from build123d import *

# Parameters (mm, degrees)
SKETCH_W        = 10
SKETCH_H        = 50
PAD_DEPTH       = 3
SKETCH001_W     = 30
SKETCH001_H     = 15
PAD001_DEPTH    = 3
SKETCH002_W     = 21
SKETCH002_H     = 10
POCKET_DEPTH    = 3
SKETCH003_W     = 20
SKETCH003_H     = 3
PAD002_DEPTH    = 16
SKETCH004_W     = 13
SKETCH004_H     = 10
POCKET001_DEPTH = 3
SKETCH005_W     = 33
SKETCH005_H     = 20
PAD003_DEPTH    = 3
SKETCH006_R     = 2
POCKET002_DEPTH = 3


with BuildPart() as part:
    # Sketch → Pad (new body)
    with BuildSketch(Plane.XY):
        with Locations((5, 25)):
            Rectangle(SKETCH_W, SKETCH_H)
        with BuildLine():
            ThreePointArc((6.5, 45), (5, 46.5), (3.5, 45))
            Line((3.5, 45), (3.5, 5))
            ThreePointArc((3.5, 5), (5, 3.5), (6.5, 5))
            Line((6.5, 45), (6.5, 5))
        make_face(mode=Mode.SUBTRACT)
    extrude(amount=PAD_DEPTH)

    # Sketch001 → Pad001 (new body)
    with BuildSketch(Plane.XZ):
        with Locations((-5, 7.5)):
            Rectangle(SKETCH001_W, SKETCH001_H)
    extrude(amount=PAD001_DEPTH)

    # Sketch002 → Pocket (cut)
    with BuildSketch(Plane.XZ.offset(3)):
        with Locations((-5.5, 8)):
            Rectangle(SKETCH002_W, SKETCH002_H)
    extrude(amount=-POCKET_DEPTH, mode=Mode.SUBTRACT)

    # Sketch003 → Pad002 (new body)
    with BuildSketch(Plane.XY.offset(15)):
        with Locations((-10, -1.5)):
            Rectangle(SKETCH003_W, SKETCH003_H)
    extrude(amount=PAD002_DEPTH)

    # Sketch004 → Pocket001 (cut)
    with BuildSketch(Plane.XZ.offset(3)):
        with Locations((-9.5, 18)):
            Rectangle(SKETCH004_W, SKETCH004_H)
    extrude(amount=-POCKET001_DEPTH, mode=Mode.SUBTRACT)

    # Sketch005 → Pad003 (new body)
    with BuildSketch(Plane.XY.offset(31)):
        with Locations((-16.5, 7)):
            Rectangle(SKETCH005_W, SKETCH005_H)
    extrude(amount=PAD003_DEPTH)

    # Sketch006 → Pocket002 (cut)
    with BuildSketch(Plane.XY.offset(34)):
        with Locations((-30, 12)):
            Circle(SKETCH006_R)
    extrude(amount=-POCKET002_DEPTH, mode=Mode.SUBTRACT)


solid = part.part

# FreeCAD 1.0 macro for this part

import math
import FreeCAD as App
import Part
import Sketcher
from FreeCAD import Vector

doc = App.newDocument("Part")
body = doc.addObject("PartDesign::Body", "Body")

sketch1 = body.newObject("Sketcher::SketchObject", "Sketch")
sketch1.AttachmentSupport = (doc.getObject("XY_Plane"), [""])
sketch1.MapMode = "FlatFace"
sketch1.addGeometry([
    Part.LineSegment(Vector(0, 50, 0), Vector(0, 0, 0)),
    Part.LineSegment(Vector(0, 0, 0), Vector(10, 0, 0)),
    Part.LineSegment(Vector(10, 0, 0), Vector(10, 50, 0)),
    Part.LineSegment(Vector(10, 50, 0), Vector(0, 50, 0)),
    Part.ArcOfCircle(Part.Circle(Vector(5, 45, 0), Vector(0, 0, 1), 1.5), math.radians(0), math.radians(180)),
    Part.LineSegment(Vector(6.5, 45, 0), Vector(6.5, 5, 0)),
    Part.ArcOfCircle(Part.Circle(Vector(5, 5, 0), Vector(0, 0, 1), 1.5), math.radians(180), math.radians(360)),
    Part.LineSegment(Vector(3.5, 5, 0), Vector(3.5, 45, 0)),
], False)
sketch1.addConstraint([
    Sketcher.Constraint("Coincident", 0, 2, 1, 1),
    Sketcher.Constraint("Coincident", 1, 2, 2, 1),
    Sketcher.Constraint("Coincident", 2, 2, 3, 1),
    Sketcher.Constraint("Coincident", 3, 2, 0, 1),
    Sketcher.Constraint("Tangent", 4, 1, 5, 1),
    Sketcher.Constraint("Tangent", 5, 2, 6, 2),
    Sketcher.Constraint("Tangent", 6, 1, 7, 1),
    Sketcher.Constraint("Tangent", 7, 2, 4, 2),
    Sketcher.Constraint("Vertical", 0),
    Sketcher.Constraint("Horizontal", 1),
    Sketcher.Constraint("Vertical", 2),
    Sketcher.Constraint("Horizontal", 3),
    Sketcher.Constraint("Vertical", 5),
    Sketcher.Constraint("Vertical", 7),
    Sketcher.Constraint("Coincident", 0, 2, -1, 1),
    Sketcher.Constraint("Radius", 4, 1.5),
    Sketcher.Constraint("DistanceX", 1, 1, 1, 2, 10.0),
    Sketcher.Constraint("DistanceY", 0, 2, 0, 1, 50.0),
    Sketcher.Constraint("DistanceY", 5, 2, 5, 1, 40.0),
    Sketcher.Constraint("DistanceX", -1, 1, 4, 3, 5.0),
    Sketcher.Constraint("DistanceY", -1, 1, 4, 3, 45.0),
])
pad1 = body.newObject("PartDesign::Pad", "Pad")
pad1.Profile = sketch1
pad1.Length = 3

sketch2 = body.newObject("Sketcher::SketchObject", "Sketch001")
sketch2.AttachmentSupport = (doc.getObject("XZ_Plane"), [""])
sketch2.MapMode = "FlatFace"
sketch2.addGeometry([
    Part.LineSegment(Vector(-20, 15, 0), Vector(-20, 0, 0)),
    Part.LineSegment(Vector(-20, 0, 0), Vector(10, 0, 0)),
    Part.LineSegment(Vector(10, 0, 0), Vector(10, 15, 0)),
    Part.LineSegment(Vector(10, 15, 0), Vector(-20, 15, 0)),
], False)
sketch2.addConstraint([
    Sketcher.Constraint("Coincident", 0, 2, 1, 1),
    Sketcher.Constraint("Coincident", 1, 2, 2, 1),
    Sketcher.Constraint("Coincident", 2, 2, 3, 1),
    Sketcher.Constraint("Coincident", 3, 2, 0, 1),
    Sketcher.Constraint("Vertical", 0),
    Sketcher.Constraint("Horizontal", 1),
    Sketcher.Constraint("Vertical", 2),
    Sketcher.Constraint("Horizontal", 3),
    Sketcher.Constraint("PointOnObject", 0, 2, -1),
    Sketcher.Constraint("DistanceX", 1, 1, 1, 2, 30.0),
    Sketcher.Constraint("DistanceY", 0, 2, 0, 1, 15.0),
    Sketcher.Constraint("DistanceX", 0, 2, -1, 1, 20.0),
])
pad2 = body.newObject("PartDesign::Pad", "Pad001")
pad2.Profile = sketch2
pad2.Length = 3

sketch3 = body.newObject("Sketcher::SketchObject", "Sketch002")
sketch3.AttachmentSupport = (doc.getObject("XZ_Plane"), [""])
sketch3.MapMode = "FlatFace"
sketch3.AttachmentOffset = App.Placement(Vector(0, 0, 3), App.Rotation())
sketch3.addGeometry([
    Part.LineSegment(Vector(-16, 13, 0), Vector(-16, 3, 0)),
    Part.LineSegment(Vector(-16, 3, 0), Vector(5, 3, 0)),
    Part.LineSegment(Vector(5, 3, 0), Vector(5, 13, 0)),
    Part.LineSegment(Vector(5, 13, 0), Vector(-16, 13, 0)),
], False)
sketch3.addConstraint([
    Sketcher.Constraint("Coincident", 0, 2, 1, 1),
    Sketcher.Constraint("Coincident", 1, 2, 2, 1),
    Sketcher.Constraint("Coincident", 2, 2, 3, 1),
    Sketcher.Constraint("Coincident", 3, 2, 0, 1),
    Sketcher.Constraint("Vertical", 0),
    Sketcher.Constraint("Horizontal", 1),
    Sketcher.Constraint("Vertical", 2),
    Sketcher.Constraint("Horizontal", 3),
    Sketcher.Constraint("DistanceX", 1, 1, 1, 2, 21.0),
    Sketcher.Constraint("DistanceY", 0, 2, 0, 1, 10.0),
    Sketcher.Constraint("DistanceX", 0, 2, -1, 1, 16.0),
    Sketcher.Constraint("DistanceY", -1, 1, 0, 2, 3.0),
])
pocket1 = body.newObject("PartDesign::Pocket", "Pocket")
pocket1.Profile = sketch3
pocket1.Length = 3

sketch4 = body.newObject("Sketcher::SketchObject", "Sketch003")
sketch4.AttachmentSupport = (doc.getObject("XY_Plane"), [""])
sketch4.MapMode = "FlatFace"
sketch4.AttachmentOffset = App.Placement(Vector(0, 0, 15), App.Rotation())
sketch4.addGeometry([
    Part.LineSegment(Vector(-20, 0, 0), Vector(-20, -3, 0)),
    Part.LineSegment(Vector(-20, -3, 0), Vector(0, -3, 0)),
    Part.LineSegment(Vector(0, -3, 0), Vector(0, 0, 0)),
    Part.LineSegment(Vector(0, 0, 0), Vector(-20, 0, 0)),
], False)
sketch4.addConstraint([
    Sketcher.Constraint("Coincident", 0, 2, 1, 1),
    Sketcher.Constraint("Coincident", 1, 2, 2, 1),
    Sketcher.Constraint("Coincident", 2, 2, 3, 1),
    Sketcher.Constraint("Coincident", 3, 2, 0, 1),
    Sketcher.Constraint("Vertical", 0),
    Sketcher.Constraint("Horizontal", 1),
    Sketcher.Constraint("Vertical", 2),
    Sketcher.Constraint("Horizontal", 3),
    Sketcher.Constraint("Coincident", 2, 2, -1, 1),
    Sketcher.Constraint("DistanceX", 1, 1, 1, 2, 20.0),
    Sketcher.Constraint("DistanceY", 0, 2, 0, 1, 3.0),
])
pad3 = body.newObject("PartDesign::Pad", "Pad002")
pad3.Profile = sketch4
pad3.Length = 16

sketch5 = body.newObject("Sketcher::SketchObject", "Sketch004")
sketch5.AttachmentSupport = (doc.getObject("XZ_Plane"), [""])
sketch5.MapMode = "FlatFace"
sketch5.AttachmentOffset = App.Placement(Vector(0, 0, 3), App.Rotation())
sketch5.addGeometry([
    Part.LineSegment(Vector(-16, 23, 0), Vector(-16, 13, 0)),
    Part.LineSegment(Vector(-16, 13, 0), Vector(-3, 13, 0)),
    Part.LineSegment(Vector(-3, 13, 0), Vector(-3, 23, 0)),
    Part.LineSegment(Vector(-3, 23, 0), Vector(-16, 23, 0)),
], False)
sketch5.addConstraint([
    Sketcher.Constraint("Coincident", 0, 2, 1, 1),
    Sketcher.Constraint("Coincident", 1, 2, 2, 1),
    Sketcher.Constraint("Coincident", 2, 2, 3, 1),
    Sketcher.Constraint("Coincident", 3, 2, 0, 1),
    Sketcher.Constraint("Vertical", 0),
    Sketcher.Constraint("Horizontal", 1),
    Sketcher.Constraint("Vertical", 2),
    Sketcher.Constraint("Horizontal", 3),
    Sketcher.Constraint("DistanceX", 1, 1, 1, 2, 13.0),
    Sketcher.Constraint("DistanceY", 0, 2, 0, 1, 10.0),
    Sketcher.Constraint("DistanceX", 0, 2, -1, 1, 16.0),
    Sketcher.Constraint("DistanceY", -1, 1, 0, 2, 13.0),
])
pocket2 = body.newObject("PartDesign::Pocket", "Pocket001")
pocket2.Profile = sketch5
pocket2.Length = 3

sketch6 = body.newObject("Sketcher::SketchObject", "Sketch005")
sketch6.AttachmentSupport = (doc.getObject("XY_Plane"), [""])
sketch6.MapMode = "FlatFace"
sketch6.AttachmentOffset = App.Placement(Vector(0, 0, 31), App.Rotation())
sketch6.addGeometry([
    Part.LineSegment(Vector(-33, 17, 0), Vector(-33, -3, 0)),
    Part.LineSegment(Vector(-33, -3, 0), Vector(0, -3, 0)),
    Part.LineSegment(Vector(0, -3, 0), Vector(0, 17, 0)),
    Part.LineSegment(Vector(0, 17, 0), Vector(-33, 17, 0)),
], False)
sketch6.addConstraint([
    Sketcher.Constraint("Coincident", 0, 2, 1, 1),
    Sketcher.Constraint("Coincident", 1, 2, 2, 1),
    Sketcher.Constraint("Coincident", 2, 2, 3, 1),
    Sketcher.Constraint("Coincident", 3, 2, 0, 1),
    Sketcher.Constraint("Vertical", 0),
    Sketcher.Constraint("Horizontal", 1),
    Sketcher.Constraint("Vertical", 2),
    Sketcher.Constraint("Horizontal", 3),
    Sketcher.Constraint("PointOnObject", 1, 2, -2),
    Sketcher.Constraint("DistanceX", 1, 1, 1, 2, 33.0),
    Sketcher.Constraint("DistanceY", 0, 2, 0, 1, 20.0),
    Sketcher.Constraint("DistanceY", 0, 2, -1, 1, 3.0),
])
pad4 = body.newObject("PartDesign::Pad", "Pad003")
pad4.Profile = sketch6
pad4.Length = 3

sketch7 = body.newObject("Sketcher::SketchObject", "Sketch006")
sketch7.AttachmentSupport = (doc.getObject("XY_Plane"), [""])
sketch7.MapMode = "FlatFace"
sketch7.AttachmentOffset = App.Placement(Vector(0, 0, 34), App.Rotation())
sketch7.addGeometry(Part.Circle(Vector(-30, 12, 0), Vector(0, 0, 1), 2), False)
sketch7.addConstraint([
    Sketcher.Constraint("Diameter", 0, 4.0),
    Sketcher.Constraint("DistanceX", 0, 3, -1, 1, 30.0),
    Sketcher.Constraint("DistanceY", -1, 1, 0, 3, 12.0),
])
pocket3 = body.newObject("PartDesign::Pocket", "Pocket002")
pocket3.Profile = sketch7
pocket3.Length = 3

doc.recompute()
